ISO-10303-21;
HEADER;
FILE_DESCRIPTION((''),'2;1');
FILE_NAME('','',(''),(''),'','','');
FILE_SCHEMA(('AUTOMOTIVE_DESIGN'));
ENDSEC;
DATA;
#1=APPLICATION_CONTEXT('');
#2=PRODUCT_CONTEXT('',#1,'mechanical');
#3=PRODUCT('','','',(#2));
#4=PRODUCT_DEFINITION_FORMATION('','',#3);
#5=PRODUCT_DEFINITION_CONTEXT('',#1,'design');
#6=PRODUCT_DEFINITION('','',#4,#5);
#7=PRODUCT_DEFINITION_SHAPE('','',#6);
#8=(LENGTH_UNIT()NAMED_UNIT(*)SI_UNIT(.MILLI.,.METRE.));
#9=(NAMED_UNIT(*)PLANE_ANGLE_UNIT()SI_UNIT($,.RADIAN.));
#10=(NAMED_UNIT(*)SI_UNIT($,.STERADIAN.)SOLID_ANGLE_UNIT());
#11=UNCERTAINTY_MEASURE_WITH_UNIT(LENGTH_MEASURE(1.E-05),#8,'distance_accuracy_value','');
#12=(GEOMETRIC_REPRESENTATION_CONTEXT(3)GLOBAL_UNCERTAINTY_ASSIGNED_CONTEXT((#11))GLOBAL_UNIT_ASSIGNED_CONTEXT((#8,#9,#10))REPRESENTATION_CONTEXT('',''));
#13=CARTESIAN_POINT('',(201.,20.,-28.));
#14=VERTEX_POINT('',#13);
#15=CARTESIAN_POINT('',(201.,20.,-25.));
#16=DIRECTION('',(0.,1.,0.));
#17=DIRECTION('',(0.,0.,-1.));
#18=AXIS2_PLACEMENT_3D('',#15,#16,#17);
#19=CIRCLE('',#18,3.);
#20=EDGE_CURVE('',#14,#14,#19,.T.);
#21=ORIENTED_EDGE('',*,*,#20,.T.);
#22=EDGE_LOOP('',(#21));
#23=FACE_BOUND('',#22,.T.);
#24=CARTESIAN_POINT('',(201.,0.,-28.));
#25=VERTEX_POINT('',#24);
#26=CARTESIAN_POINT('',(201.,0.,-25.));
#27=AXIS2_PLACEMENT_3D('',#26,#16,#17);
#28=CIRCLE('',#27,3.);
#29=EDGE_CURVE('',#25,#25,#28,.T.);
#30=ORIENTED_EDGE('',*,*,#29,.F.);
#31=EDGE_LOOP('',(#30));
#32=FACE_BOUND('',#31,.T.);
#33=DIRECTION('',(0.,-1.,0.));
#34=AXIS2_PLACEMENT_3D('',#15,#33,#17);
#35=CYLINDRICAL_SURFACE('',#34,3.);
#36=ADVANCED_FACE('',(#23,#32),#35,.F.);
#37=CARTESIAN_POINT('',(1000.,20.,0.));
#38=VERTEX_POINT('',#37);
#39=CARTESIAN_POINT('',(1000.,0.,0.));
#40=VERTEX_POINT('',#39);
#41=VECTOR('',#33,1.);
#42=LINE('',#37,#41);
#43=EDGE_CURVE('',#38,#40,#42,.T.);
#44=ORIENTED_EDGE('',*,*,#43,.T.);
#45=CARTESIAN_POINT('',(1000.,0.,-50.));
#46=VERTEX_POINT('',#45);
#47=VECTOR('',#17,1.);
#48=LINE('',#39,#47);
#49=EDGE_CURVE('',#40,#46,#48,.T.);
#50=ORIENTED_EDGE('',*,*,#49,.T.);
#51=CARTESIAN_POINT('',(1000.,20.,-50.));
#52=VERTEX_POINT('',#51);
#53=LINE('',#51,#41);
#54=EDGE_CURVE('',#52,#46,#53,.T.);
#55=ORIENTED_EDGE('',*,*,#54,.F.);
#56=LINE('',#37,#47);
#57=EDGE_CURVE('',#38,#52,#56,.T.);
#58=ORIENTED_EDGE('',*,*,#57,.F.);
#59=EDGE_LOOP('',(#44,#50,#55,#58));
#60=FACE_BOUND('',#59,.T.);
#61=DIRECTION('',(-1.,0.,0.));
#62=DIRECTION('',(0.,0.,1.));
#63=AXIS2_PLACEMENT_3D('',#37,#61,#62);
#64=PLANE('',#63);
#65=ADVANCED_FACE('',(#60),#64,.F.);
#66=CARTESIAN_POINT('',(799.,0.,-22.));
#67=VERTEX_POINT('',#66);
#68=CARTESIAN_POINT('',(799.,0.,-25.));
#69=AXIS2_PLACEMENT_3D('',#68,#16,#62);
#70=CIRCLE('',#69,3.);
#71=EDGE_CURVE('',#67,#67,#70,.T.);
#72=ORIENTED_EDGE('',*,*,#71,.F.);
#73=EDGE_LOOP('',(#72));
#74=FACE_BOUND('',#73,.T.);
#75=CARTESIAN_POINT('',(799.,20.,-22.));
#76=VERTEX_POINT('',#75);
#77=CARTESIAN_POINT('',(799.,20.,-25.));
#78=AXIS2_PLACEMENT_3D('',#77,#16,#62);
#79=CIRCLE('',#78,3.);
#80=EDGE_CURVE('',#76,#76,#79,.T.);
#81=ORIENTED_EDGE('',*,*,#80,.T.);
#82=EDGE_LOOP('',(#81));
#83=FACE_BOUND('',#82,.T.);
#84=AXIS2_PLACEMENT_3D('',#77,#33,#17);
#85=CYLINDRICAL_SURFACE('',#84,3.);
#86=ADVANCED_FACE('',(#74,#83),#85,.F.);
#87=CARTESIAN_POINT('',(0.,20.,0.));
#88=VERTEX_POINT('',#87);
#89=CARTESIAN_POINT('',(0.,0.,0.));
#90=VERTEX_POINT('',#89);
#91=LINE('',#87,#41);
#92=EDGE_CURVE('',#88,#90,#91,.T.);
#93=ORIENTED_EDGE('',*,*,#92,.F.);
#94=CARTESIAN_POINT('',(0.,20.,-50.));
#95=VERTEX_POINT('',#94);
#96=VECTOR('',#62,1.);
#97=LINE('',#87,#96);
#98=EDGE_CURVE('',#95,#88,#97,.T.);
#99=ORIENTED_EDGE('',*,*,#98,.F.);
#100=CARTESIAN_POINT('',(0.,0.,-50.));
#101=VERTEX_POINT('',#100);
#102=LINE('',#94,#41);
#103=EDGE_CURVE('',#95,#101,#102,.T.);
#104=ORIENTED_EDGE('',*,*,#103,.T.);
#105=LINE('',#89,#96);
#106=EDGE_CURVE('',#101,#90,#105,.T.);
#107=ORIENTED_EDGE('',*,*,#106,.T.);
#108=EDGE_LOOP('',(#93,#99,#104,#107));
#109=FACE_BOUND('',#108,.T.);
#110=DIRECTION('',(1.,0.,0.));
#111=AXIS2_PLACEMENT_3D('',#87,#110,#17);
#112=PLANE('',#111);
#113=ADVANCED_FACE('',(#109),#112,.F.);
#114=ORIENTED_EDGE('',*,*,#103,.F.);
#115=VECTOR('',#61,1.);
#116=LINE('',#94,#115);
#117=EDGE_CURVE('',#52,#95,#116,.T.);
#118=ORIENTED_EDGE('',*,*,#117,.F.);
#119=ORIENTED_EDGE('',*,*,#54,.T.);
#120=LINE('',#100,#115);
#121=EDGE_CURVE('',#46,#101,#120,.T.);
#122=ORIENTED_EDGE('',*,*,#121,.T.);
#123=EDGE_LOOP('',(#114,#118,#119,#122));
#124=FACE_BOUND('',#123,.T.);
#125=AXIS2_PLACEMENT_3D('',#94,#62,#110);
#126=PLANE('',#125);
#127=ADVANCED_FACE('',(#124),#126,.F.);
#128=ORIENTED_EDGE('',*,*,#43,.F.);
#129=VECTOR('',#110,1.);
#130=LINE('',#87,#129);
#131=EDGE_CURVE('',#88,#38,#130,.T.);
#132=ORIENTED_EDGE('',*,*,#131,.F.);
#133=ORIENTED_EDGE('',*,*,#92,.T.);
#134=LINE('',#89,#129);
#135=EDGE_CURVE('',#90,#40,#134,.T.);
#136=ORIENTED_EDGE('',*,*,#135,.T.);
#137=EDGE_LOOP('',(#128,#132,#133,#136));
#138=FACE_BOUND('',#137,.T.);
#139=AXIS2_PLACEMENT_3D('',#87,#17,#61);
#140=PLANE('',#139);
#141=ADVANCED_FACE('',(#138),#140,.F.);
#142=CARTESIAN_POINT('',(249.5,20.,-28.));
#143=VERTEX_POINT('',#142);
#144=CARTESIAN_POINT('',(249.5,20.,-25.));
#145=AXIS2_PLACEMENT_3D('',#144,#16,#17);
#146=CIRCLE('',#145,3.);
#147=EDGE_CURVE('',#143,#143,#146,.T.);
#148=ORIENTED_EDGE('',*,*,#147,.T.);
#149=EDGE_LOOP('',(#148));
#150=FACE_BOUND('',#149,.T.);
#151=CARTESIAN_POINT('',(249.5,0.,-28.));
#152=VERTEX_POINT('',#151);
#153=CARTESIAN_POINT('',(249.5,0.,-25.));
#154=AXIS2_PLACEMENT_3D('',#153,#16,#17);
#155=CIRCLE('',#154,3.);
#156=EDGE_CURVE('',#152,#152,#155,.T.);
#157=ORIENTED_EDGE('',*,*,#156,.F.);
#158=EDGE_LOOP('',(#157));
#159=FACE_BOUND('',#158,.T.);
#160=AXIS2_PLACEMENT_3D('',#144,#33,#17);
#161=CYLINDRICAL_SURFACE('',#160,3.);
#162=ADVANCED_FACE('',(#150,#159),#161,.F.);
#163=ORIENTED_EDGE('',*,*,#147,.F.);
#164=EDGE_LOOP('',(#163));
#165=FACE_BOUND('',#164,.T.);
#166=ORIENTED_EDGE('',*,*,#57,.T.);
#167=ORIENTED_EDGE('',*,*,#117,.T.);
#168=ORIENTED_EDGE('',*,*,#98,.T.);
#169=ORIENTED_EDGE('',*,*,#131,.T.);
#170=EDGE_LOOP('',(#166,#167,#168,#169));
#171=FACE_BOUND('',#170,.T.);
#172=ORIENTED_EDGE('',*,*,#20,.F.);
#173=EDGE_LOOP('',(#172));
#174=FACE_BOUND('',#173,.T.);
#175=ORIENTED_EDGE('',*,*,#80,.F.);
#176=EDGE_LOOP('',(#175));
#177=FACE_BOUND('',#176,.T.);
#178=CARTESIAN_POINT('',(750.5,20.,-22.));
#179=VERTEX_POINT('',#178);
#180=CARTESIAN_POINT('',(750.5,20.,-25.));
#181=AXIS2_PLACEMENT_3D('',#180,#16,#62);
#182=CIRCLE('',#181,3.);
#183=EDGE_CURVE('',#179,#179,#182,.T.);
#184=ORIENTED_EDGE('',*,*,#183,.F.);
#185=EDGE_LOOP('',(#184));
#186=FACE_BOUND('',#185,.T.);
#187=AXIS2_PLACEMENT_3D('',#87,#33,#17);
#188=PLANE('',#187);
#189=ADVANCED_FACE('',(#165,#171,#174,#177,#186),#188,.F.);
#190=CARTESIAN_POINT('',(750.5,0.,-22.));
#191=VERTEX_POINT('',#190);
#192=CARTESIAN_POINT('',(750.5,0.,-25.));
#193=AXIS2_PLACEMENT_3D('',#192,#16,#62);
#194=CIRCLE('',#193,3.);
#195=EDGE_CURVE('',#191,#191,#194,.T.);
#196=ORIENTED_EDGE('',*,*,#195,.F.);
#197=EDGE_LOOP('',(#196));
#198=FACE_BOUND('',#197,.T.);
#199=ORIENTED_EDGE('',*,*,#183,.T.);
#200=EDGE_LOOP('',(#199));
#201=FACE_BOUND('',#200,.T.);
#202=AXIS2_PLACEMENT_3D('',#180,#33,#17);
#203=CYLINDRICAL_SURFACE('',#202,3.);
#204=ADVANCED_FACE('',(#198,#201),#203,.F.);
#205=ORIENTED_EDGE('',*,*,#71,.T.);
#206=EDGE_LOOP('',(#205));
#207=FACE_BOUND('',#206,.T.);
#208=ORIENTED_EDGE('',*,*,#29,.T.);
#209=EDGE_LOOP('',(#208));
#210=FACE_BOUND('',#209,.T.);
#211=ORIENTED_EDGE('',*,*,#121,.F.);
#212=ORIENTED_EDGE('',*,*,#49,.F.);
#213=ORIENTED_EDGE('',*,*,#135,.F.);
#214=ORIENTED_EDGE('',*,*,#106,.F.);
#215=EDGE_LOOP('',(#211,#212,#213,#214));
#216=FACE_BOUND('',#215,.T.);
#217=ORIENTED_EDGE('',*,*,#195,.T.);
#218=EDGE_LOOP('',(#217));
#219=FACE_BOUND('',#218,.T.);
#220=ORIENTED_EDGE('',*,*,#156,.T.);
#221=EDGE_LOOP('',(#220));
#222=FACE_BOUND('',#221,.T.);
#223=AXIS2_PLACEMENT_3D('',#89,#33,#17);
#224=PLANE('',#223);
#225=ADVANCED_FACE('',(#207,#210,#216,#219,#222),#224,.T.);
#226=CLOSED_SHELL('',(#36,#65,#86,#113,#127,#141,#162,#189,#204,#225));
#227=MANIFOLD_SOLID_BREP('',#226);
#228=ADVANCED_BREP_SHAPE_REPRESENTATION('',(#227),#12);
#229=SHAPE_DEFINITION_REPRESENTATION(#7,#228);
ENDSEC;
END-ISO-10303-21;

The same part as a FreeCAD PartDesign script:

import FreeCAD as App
import Part
import Sketcher


def add_polygon(sketch, points):
    """Adds a closed chain of lines whose ends are joined by coincident constraints."""
    first, n = sketch.GeometryCount, len(points)
    for a, b in zip(points, points[1:] + points[:1]):
        sketch.addGeometry(Part.LineSegment(App.Vector(*a, 0), App.Vector(*b, 0)), False)
    for i in range(n):
        sketch.addConstraint(Sketcher.Constraint("Coincident", first + i, 2, first + (i + 1) % n, 1))

doc = App.newDocument("Part")
body = doc.addObject("PartDesign::Body", "Body")

# Sketch on XZ plane
sketch1 = body.newObject("Sketcher::SketchObject", "Sketch")
sketch1.AttachmentSupport = (doc.getObject("XZ_Plane"), [""])
sketch1.MapMode = "FlatFace"
add_polygon(sketch1, [(0, -50), (0, 0), (1000, 0), (1000, -50)])  # lines 0-3
sketch1.addGeometry(Part.Circle(App.Vector(201, -25, 0), App.Vector(0, 0, 1), 3), False)  # 4
sketch1.addGeometry(Part.Circle(App.Vector(249.5, -25, 0), App.Vector(0, 0, 1), 3), False)  # 5
sketch1.addGeometry(Part.Circle(App.Vector(750.5, -25, 0), App.Vector(0, 0, 1), 3), False)  # 6
sketch1.addGeometry(Part.Circle(App.Vector(799, -25, 0), App.Vector(0, 0, 1), 3), False)  # 7
sketch1.addConstraint([
    Sketcher.Constraint("Vertical", 0),
    Sketcher.Constraint("Horizontal", 1),
    Sketcher.Constraint("Vertical", 2),
    Sketcher.Constraint("Horizontal", 3),
    Sketcher.Constraint("Coincident", 0, 2, -1, 1),
    Sketcher.Constraint("Equal", 4, 5),
    Sketcher.Constraint("Equal", 5, 6),
    Sketcher.Constraint("Equal", 6, 7),
    Sketcher.Constraint("Horizontal", 4, 3, 5, 3),
    Sketcher.Constraint("Horizontal", 5, 3, 6, 3),
    Sketcher.Constraint("Horizontal", 6, 3, 7, 3),
    Sketcher.Constraint("Diameter", 4, 6.0),
    Sketcher.Constraint("DistanceX", 1, 1, 1, 2, 1000.0),
    Sketcher.Constraint("DistanceY", 0, 1, 0, 2, 50.0),
    Sketcher.Constraint("DistanceX", -1, 1, 4, 3, 201.0),
    Sketcher.Constraint("DistanceY", 4, 3, -1, 1, 25.0),
    Sketcher.Constraint("DistanceX", -1, 1, 7, 3, 799.0),
    Sketcher.Constraint("DistanceX", 5, 3, 6, 3, 501.0),
    Sketcher.Constraint("DistanceX", -1, 1, 5, 3, 249.5),
])
pad1 = body.newObject("PartDesign::Pad", "Pad")
pad1.Profile = sketch1
pad1.Length = 20
pad1.Reversed = True

doc.recompute()
